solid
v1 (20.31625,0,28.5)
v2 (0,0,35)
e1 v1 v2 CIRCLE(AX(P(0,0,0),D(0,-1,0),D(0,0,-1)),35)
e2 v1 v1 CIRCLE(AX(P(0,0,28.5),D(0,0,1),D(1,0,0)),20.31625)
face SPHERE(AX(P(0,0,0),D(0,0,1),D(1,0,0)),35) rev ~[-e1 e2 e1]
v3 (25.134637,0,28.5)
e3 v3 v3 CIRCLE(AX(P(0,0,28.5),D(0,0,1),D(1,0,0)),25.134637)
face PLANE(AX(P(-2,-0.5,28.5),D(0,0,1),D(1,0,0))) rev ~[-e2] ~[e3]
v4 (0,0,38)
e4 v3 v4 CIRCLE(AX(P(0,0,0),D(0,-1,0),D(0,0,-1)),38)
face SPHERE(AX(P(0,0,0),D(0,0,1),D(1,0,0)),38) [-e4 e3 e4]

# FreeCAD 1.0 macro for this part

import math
import FreeCAD as App
import Part
import Sketcher
Q = App.Units.Quantity

doc = App.newDocument("Part")
body = doc.addObject("PartDesign::Body", "Body")

sketch1 = body.newObject("Sketcher::SketchObject", "Sketch")
sketch1.AttachmentSupport = (doc.getObject("XY_Plane"), [""])
sketch1.MapMode = "FlatFace"
sketch1.addGeometry(Part.Circle(App.Vector(0, 0, 0), App.Vector(0, 0, 1), 9), False)
sketch1.addConstraint(Sketcher.Constraint("Coincident", 0, 3, -1, 1))
sketch1.addConstraint(Sketcher.Constraint("Diameter", 0, Q("18 mm")))
pad1 = body.newObject("PartDesign::Pad", "Pad")
pad1.Profile = sketch1
pad1.Length = 10
body2 = doc.addObject("PartDesign::Body", "Body001")
doc.recompute()

body.Placement = App.Placement(App.Vector(0, 0, 0), App.Rotation(App.Vector(0, 1, 0), 90))
boolean = body2.newObject("PartDesign::Boolean", "Boolean")
boolean.Type = "Fuse"
boolean.addObjects([body])
body3 = doc.addObject("PartDesign::Body", "Body002")
doc.recompute()

body2.Placement = App.Placement(App.Vector(-33, 0, 3), App.Rotation(App.Vector(0, 0, 1), 0))
boolean2 = body3.newObject("PartDesign::Boolean", "Boolean001")
boolean2.Type = "Fuse"
boolean2.addObjects([body2])
body4 = doc.addObject("PartDesign::Body", "Body003")

sketch2 = body4.newObject("Sketcher::SketchObject", "Sketch001")
sketch2.AttachmentSupport = (doc.getObject("XY_Plane003"), [""])
sketch2.MapMode = "FlatFace"
sketch2.AttachmentOffset = App.Placement(App.Vector(0, 0, -3), App.Rotation())
sketch2.addGeometry(Part.LineSegment(App.Vector(-33, 9, 0), App.Vector(-33, -9, 0)), False)
sketch2.addGeometry(Part.LineSegment(App.Vector(-33, -9, 0), App.Vector(-23, -9, 0)), False)
sketch2.addGeometry(Part.LineSegment(App.Vector(-23, -9, 0), App.Vector(-23, 9, 0)), False)
sketch2.addGeometry(Part.LineSegment(App.Vector(-23, 9, 0), App.Vector(-33, 9, 0)), False)
sketch2.addConstraint(Sketcher.Constraint("Coincident", 0, 2, 1, 1))
sketch2.addConstraint(Sketcher.Constraint("Coincident", 1, 2, 2, 1))
sketch2.addConstraint(Sketcher.Constraint("Coincident", 2, 2, 3, 1))
sketch2.addConstraint(Sketcher.Constraint("Coincident", 3, 2, 0, 1))
sketch2.addConstraint(Sketcher.Constraint("Vertical", 0))
sketch2.addConstraint(Sketcher.Constraint("Horizontal", 1))
sketch2.addConstraint(Sketcher.Constraint("Vertical", 2))
sketch2.addConstraint(Sketcher.Constraint("Horizontal", 3))
sketch2.addConstraint(Sketcher.Constraint("DistanceX", 1, 1, 1, 2, Q("10 mm")))
sketch2.addConstraint(Sketcher.Constraint("DistanceY", 0, 2, 0, 1, Q("18 mm")))
sketch2.addConstraint(Sketcher.Constraint("DistanceX", 0, 2, -1, 1, Q("33 mm")))
sketch2.addConstraint(Sketcher.Constraint("DistanceY", 0, 2, -1, 1, Q("9 mm")))
pad2 = body4.newObject("PartDesign::Pad", "Pad001")
pad2.Profile = sketch2
pad2.Length = 6
body5 = doc.addObject("PartDesign::Body", "Body004")

sketch3 = body5.newObject("Sketcher::SketchObject", "Sketch002")
sketch3.AttachmentSupport = (doc.getObject("XY_Plane004"), [""])
sketch3.MapMode = "FlatFace"
sketch3.addGeometry(Part.Circle(App.Vector(0, 0, 0), App.Vector(0, 0, 1), 9), False)
sketch3.addConstraint(Sketcher.Constraint("Coincident", 0, 3, -1, 1))
sketch3.addConstraint(Sketcher.Constraint("Diameter", 0, Q("18 mm")))
pad3 = body5.newObject("PartDesign::Pad", "Pad002")
pad3.Profile = sketch3
pad3.Length = 10
body6 = doc.addObject("PartDesign::Body", "Body005")
doc.recompute()

body5.Placement = App.Placement(App.Vector(0, 0, 0), App.Rotation(App.Vector(0, 1, 0), 90))
boolean3 = body6.newObject("PartDesign::Boolean", "Boolean002")
boolean3.Type = "Fuse"
boolean3.addObjects([body5])
body7 = doc.addObject("PartDesign::Body", "Body006")
doc.recompute()

body6.Placement = App.Placement(App.Vector(-33, 0, -3), App.Rotation(App.Vector(0, 0, 1), 0))
boolean4 = body7.newObject("PartDesign::Boolean", "Boolean003")
boolean4.Type = "Fuse"
boolean4.addObjects([body6])
doc.recompute()

boolean5 = body7.newObject("PartDesign::Boolean", "Boolean004")
boolean5.Type = "Fuse"
boolean5.addObjects([body3])
doc.recompute()

boolean6 = body7.newObject("PartDesign::Boolean", "Boolean005")
boolean6.Type = "Fuse"
boolean6.addObjects([body4])
body8 = doc.addObject("PartDesign::Body", "Body007")

sketch4 = body8.newObject("Sketcher::SketchObject", "Sketch003")
sketch4.AttachmentSupport = (doc.getObject("XY_Plane007"), [""])
sketch4.MapMode = "FlatFace"
sketch4.addGeometry(Part.Circle(App.Vector(0, 0, 0), App.Vector(0, 0, 1), 8), False)
sketch4.addConstraint(Sketcher.Constraint("Coincident", 0, 3, -1, 1))
sketch4.addConstraint(Sketcher.Constraint("Diameter", 0, Q("15 mm")))
pad4 = body8.newObject("PartDesign::Pad", "Pad003")
pad4.Profile = sketch4
pad4.Length = 20
body9 = doc.addObject("PartDesign::Body", "Body008")
doc.recompute()

body8.Placement = App.Placement(App.Vector(0, 0, 0), App.Rotation(App.Vector(0, 1, 0), 90))
boolean7 = body9.newObject("PartDesign::Boolean", "Boolean006")
boolean7.Type = "Fuse"
boolean7.addObjects([body8])
body10 = doc.addObject("PartDesign::Body", "Body009")
doc.recompute()

body9.Placement = App.Placement(App.Vector(-46, 0, 0), App.Rotation(App.Vector(0, 0, 1), 0))
boolean8 = body10.newObject("PartDesign::Boolean", "Boolean007")
boolean8.Type = "Fuse"
boolean8.addObjects([body9])
body11 = doc.addObject("PartDesign::Body", "Body010")

sketch5 = body11.newObject("Sketcher::SketchObject", "Sketch004")
sketch5.AttachmentSupport = (doc.getObject("XY_Plane010"), [""])
sketch5.MapMode = "FlatFace"
sketch5.addGeometry(Part.LineSegment(App.Vector(-51, -49, 0), App.Vector(-51, 49, 0)), False)
sketch5.addGeometry(Part.LineSegment(App.Vector(-51, 49, 0), App.Vector(47, 49, 0)), False)
sketch5.addGeometry(Part.LineSegment(App.Vector(47, 49, 0), App.Vector(47, -49, 0)), False)
sketch5.addGeometry(Part.LineSegment(App.Vector(47, -49, 0), App.Vector(-51, -49, 0)), False)
sketch5.addConstraint(Sketcher.Constraint("Coincident", 0, 2, 1, 1))
sketch5.addConstraint(Sketcher.Constraint("Coincident", 1, 2, 2, 1))
sketch5.addConstraint(Sketcher.Constraint("Coincident", 2, 2, 3, 1))
sketch5.addConstraint(Sketcher.Constraint("Coincident", 3, 2, 0, 1))
sketch5.addConstraint(Sketcher.Constraint("Vertical", 0))
sketch5.addConstraint(Sketcher.Constraint("Horizontal", 1))
sketch5.addConstraint(Sketcher.Constraint("Vertical", 2))
sketch5.addConstraint(Sketcher.Constraint("Horizontal", 3))
sketch5.addConstraint(Sketcher.Constraint("Equal", 3, 0))
sketch5.addConstraint(Sketcher.Constraint("DistanceX", 1, 1, 1, 2, Q("98 mm")))
sketch5.addConstraint(Sketcher.Constraint("DistanceX", 0, 2, -1, 1, Q("51 mm")))
sketch5.addConstraint(Sketcher.Constraint("DistanceY", -1, 1, 0, 2, Q("49 mm")))
pad5 = body11.newObject("PartDesign::Pad", "Pad004")
pad5.Profile = sketch5
pad5.Length = 98
pad5.Reversed = True
body12 = doc.addObject("PartDesign::Body", "Body011")

sketch6 = body12.newObject("Sketcher::SketchObject", "Sketch005")
sketch6.AttachmentSupport = (doc.getObject("XY_Plane011"), [""])
sketch6.MapMode = "FlatFace"
sketch6.addGeometry(Part.Circle(App.Vector(0, 0, 0), App.Vector(0, 0, 1), 4), False)
sketch6.addConstraint(Sketcher.Constraint("Coincident", 0, 3, -1, 1))
sketch6.addConstraint(Sketcher.Constraint("Diameter", 0, Q("8 mm")))
pad6 = body12.newObject("PartDesign::Pad", "Pad005")
pad6.Profile = sketch6
pad6.Length = 52
body13 = doc.addObject("PartDesign::Body", "Body012")
doc.recompute()

body12.Placement = App.Placement(App.Vector(0, 0, 0), App.Rotation(App.Vector(0, 1, 0), 270))
boolean9 = body13.newObject("PartDesign::Boolean", "Boolean008")
boolean9.Type = "Fuse"
boolean9.addObjects([body12])
body14 = doc.addObject("PartDesign::Body", "Body013")
doc.recompute()

body13.Placement = App.Placement(App.Vector(0, 0, 0), App.Rotation(App.Vector(0, 0, 1), 170))
boolean10 = body14.newObject("PartDesign::Boolean", "Boolean009")
boolean10.Type = "Fuse"
boolean10.addObjects([body13])
body15 = doc.addObject("PartDesign::Body", "Body014")

sketch7 = body15.newObject("Sketcher::SketchObject", "Sketch006")
sketch7.AttachmentSupport = (doc.getObject("XY_Plane014"), [""])
sketch7.MapMode = "FlatFace"
sketch7.addGeometry(Part.LineSegment(App.Vector(0, 64, 0), App.Vector(0, 0, 0)), False)
sketch7.addGeometry(Part.LineSegment(App.Vector(0, 0, 0), App.Vector(120, 0, 0)), False)
sketch7.addGeometry(Part.LineSegment(App.Vector(120, 0, 0), App.Vector(120, 64, 0)), False)
sketch7.addGeometry(Part.LineSegment(App.Vector(120, 64, 0), App.Vector(0, 64, 0)), False)
sketch7.addConstraint(Sketcher.Constraint("Coincident", 0, 2, 1, 1))
sketch7.addConstraint(Sketcher.Constraint("Coincident", 1, 2, 2, 1))
sketch7.addConstraint(Sketcher.Constraint("Coincident", 2, 2, 3, 1))
sketch7.addConstraint(Sketcher.Constraint("Coincident", 3, 2, 0, 1))
sketch7.addConstraint(Sketcher.Constraint("Vertical", 0))
sketch7.addConstraint(Sketcher.Constraint("Horizontal", 1))
sketch7.addConstraint(Sketcher.Constraint("Vertical", 2))
sketch7.addConstraint(Sketcher.Constraint("Horizontal", 3))
sketch7.addConstraint(Sketcher.Constraint("Coincident", 0, 2, -1, 1))
sketch7.addConstraint(Sketcher.Constraint("DistanceX", 1, 1, 1, 2, Q("120 mm")))
sketch7.addConstraint(Sketcher.Constraint("DistanceY", 0, 2, 0, 1, Q("64 mm")))
pad7 = body15.newObject("PartDesign::Pad", "Pad006")
pad7.Profile = sketch7
pad7.Length = 15
body16 = doc.addObject("PartDesign::Body", "Body015")
doc.recompute()

body15.Placement = App.Placement(App.Vector(-42.426407, -42.426407, -9), App.Rotation(App.Vector(0, 0, 1), 45))
boolean11 = body16.newObject("PartDesign::Boolean", "Boolean010")
boolean11.Type = "Fuse"
boolean11.addObjects([body15])
body17 = doc.addObject("PartDesign::Body", "Body016")

sketch8 = body17.newObject("Sketcher::SketchObject", "Sketch007")
sketch8.AttachmentSupport = (doc.getObject("XY_Plane016"), [""])
sketch8.MapMode = "FlatFace"
sketch8.addGeometry(Part.LineSegment(App.Vector(0, 61, 0), App.Vector(0, 0, 0)), False)
sketch8.addGeometry(Part.LineSegment(App.Vector(0, 0, 0), App.Vector(120, 0, 0)), False)
sketch8.addGeometry(Part.LineSegment(App.Vector(120, 0, 0), App.Vector(120, 61, 0)), False)
sketch8.addGeometry(Part.LineSegment(App.Vector(120, 61, 0), App.Vector(0, 61, 0)), False)
sketch8.addConstraint(Sketcher.Constraint("Coincident", 0, 2, 1, 1))
sketch8.addConstraint(Sketcher.Constraint("Coincident", 1, 2, 2, 1))
sketch8.addConstraint(Sketcher.Constraint("Coincident", 2, 2, 3, 1))
sketch8.addConstraint(Sketcher.Constraint("Coincident", 3, 2, 0, 1))
sketch8.addConstraint(Sketcher.Constraint("Vertical", 0))
sketch8.addConstraint(Sketcher.Constraint("Horizontal", 1))
sketch8.addConstraint(Sketcher.Constraint("Vertical", 2))
sketch8.addConstraint(Sketcher.Constraint("Horizontal", 3))
sketch8.addConstraint(Sketcher.Constraint("Coincident", 0, 2, -1, 1))
sketch8.addConstraint(Sketcher.Constraint("DistanceX", 1, 1, 1, 2, Q("120 mm")))
sketch8.addConstraint(Sketcher.Constraint("DistanceY", 0, 2, 0, 1, Q("61 mm")))
pad8 = body17.newObject("PartDesign::Pad", "Pad007")
pad8.Profile = sketch8
pad8.Length = 15
body18 = doc.addObject("PartDesign::Body", "Body017")
doc.recompute()

body17.Placement = App.Placement(App.Vector(-59.088465, 10.418891, -8), App.Rotation(App.Vector(0, 0, 1), 350))
boolean12 = body18.newObject("PartDesign::Boolean", "Boolean011")
boolean12.Type = "Fuse"
boolean12.addObjects([body17])
body19 = doc.addObject("PartDesign::Body", "Body018")

sketch9 = body19.newObject("Sketcher::SketchObject", "Sketch008")
sketch9.AttachmentSupport = (doc.getObject("XY_Plane018"), [""])
sketch9.MapMode = "FlatFace"
sketch9.AttachmentOffset = App.Placement(App.Vector(0, 0, -4), App.Rotation())
sketch9.addGeometry(Part.Circle(App.Vector(0, 0, 0), App.Vector(0, 0, 1), 52), False)
sketch9.addConstraint(Sketcher.Constraint("Coincident", 0, 3, -1, 1))
sketch9.addConstraint(Sketcher.Constraint("Diameter", 0, Q("104 mm")))
pad9 = body19.newObject("PartDesign::Pad", "Pad008")
pad9.Profile = sketch9
pad9.Length = 8
doc.recompute()

boolean13 = body19.newObject("PartDesign::Boolean", "Boolean012")
boolean13.Type = "Cut"
boolean13.addObjects([body18])
doc.recompute()

boolean14 = body19.newObject("PartDesign::Boolean", "Boolean013")
boolean14.Type = "Cut"
boolean14.addObjects([body16])
body20 = doc.addObject("PartDesign::Body", "Body019")

sketch10 = body20.newObject("Sketcher::SketchObject", "Sketch009")
sketch10.AttachmentSupport = (doc.getObject("XY_Plane019"), [""])
sketch10.MapMode = "FlatFace"
sketch10.addGeometry(Part.Circle(App.Vector(0, 0, 0), App.Vector(0, 0, 1), 4), False)
sketch10.addConstraint(Sketcher.Constraint("Coincident", 0, 3, -1, 1))
sketch10.addConstraint(Sketcher.Constraint("Diameter", 0, Q("8 mm")))
pad10 = body20.newObject("PartDesign::Pad", "Pad009")
pad10.Profile = sketch10
pad10.Length = 52
body21 = doc.addObject("PartDesign::Body", "Body020")
doc.recompute()

body20.Placement = App.Placement(App.Vector(0, 0, 0), App.Rotation(App.Vector(0, 1, 0), 270))
boolean15 = body21.newObject("PartDesign::Boolean", "Boolean014")
boolean15.Type = "Fuse"
boolean15.addObjects([body20])
body22 = doc.addObject("PartDesign::Body", "Body021")
doc.recompute()

body21.Placement = App.Placement(App.Vector(0, 0, 0), App.Rotation(App.Vector(0, 0, 1), 45))
boolean16 = body22.newObject("PartDesign::Boolean", "Boolean015")
boolean16.Type = "Fuse"
boolean16.addObjects([body21])
doc.recompute()

boolean17 = body22.newObject("PartDesign::Boolean", "Boolean016")
boolean17.Type = "Fuse"
boolean17.addObjects([body14])
doc.recompute()

boolean18 = body22.newObject("PartDesign::Boolean", "Boolean017")
boolean18.Type = "Fuse"
boolean18.addObjects([body19])
body23 = doc.addObject("PartDesign::Body", "Body022")

sketch11 = body23.newObject("Sketcher::SketchObject", "Sketch010")
sketch11.AttachmentSupport = (doc.getObject("XZ_Plane022"), [""])
sketch11.MapMode = "FlatFace"
sketch11.addGeometry(Part.ArcOfCircle(Part.Circle(App.Vector(0, 0, 0), App.Vector(0, 0, 1), 35), math.radians(-90), math.radians(90)), False)
sketch11.addGeometry(Part.LineSegment(App.Vector(0, 35, 0), App.Vector(0, -35, 0)), False)
sketch11.addConstraint(Sketcher.Constraint("Coincident", 0, 1, 1, 2))
sketch11.addConstraint(Sketcher.Constraint("Coincident", 1, 1, 0, 2))
sketch11.addConstraint(Sketcher.Constraint("Vertical", 1))
sketch11.addConstraint(Sketcher.Constraint("Coincident", 0, 3, -1, 1))
sketch11.addConstraint(Sketcher.Constraint("PointOnObject", 0, 1, -2))
sketch11.addConstraint(Sketcher.Constraint("Radius", 0, Q("35 mm")))
revolution = body23.newObject("PartDesign::Revolution", "Revolution")
revolution.Profile = sketch11
revolution.ReferenceAxis = (sketch11, ["V_Axis"])
revolution.Angle = 360
body24 = doc.addObject("PartDesign::Body", "Body023")

sketch12 = body24.newObject("Sketcher::SketchObject", "Sketch011")
sketch12.AttachmentSupport = (doc.getObject("XZ_Plane023"), [""])
sketch12.MapMode = "FlatFace"
sketch12.addGeometry(Part.ArcOfCircle(Part.Circle(App.Vector(0, 0, 0), App.Vector(0, 0, 1), 38), math.radians(-90), math.radians(90)), False)
sketch12.addGeometry(Part.LineSegment(App.Vector(0, 38, 0), App.Vector(0, -38, 0)), False)
sketch12.addConstraint(Sketcher.Constraint("Coincident", 0, 1, 1, 2))
sketch12.addConstraint(Sketcher.Constraint("Coincident", 1, 1, 0, 2))
sketch12.addConstraint(Sketcher.Constraint("Vertical", 1))
sketch12.addConstraint(Sketcher.Constraint("Coincident", 0, 3, -1, 1))
sketch12.addConstraint(Sketcher.Constraint("PointOnObject", 0, 1, -2))
sketch12.addConstraint(Sketcher.Constraint("Radius", 0, Q("38 mm")))
revolution2 = body24.newObject("PartDesign::Revolution", "Revolution001")
revolution2.Profile = sketch12
revolution2.ReferenceAxis = (sketch12, ["V_Axis"])
revolution2.Angle = 360
doc.recompute()

boolean19 = body24.newObject("PartDesign::Boolean", "Boolean018")
boolean19.Type = "Cut"
boolean19.addObjects([body23])
doc.recompute()

boolean20 = body24.newObject("PartDesign::Boolean", "Boolean019")
boolean20.Type = "Cut"
boolean20.addObjects([body22])
doc.recompute()

boolean21 = body24.newObject("PartDesign::Boolean", "Boolean020")
boolean21.Type = "Cut"
boolean21.addObjects([body11])
body25 = doc.addObject("PartDesign::Body", "Body024")

sketch13 = body25.newObject("Sketcher::SketchObject", "Sketch012")
sketch13.AttachmentSupport = (doc.getObject("XZ_Plane024"), [""])
sketch13.MapMode = "FlatFace"
sketch13.addGeometry(Part.ArcOfCircle(Part.Circle(App.Vector(0, 0, 0), App.Vector(0, 0, 1), 35), math.radians(-90), math.radians(90)), False)
sketch13.addGeometry(Part.LineSegment(App.Vector(0, 35, 0), App.Vector(0, -35, 0)), False)
sketch13.addConstraint(Sketcher.Constraint("Coincident", 0, 1, 1, 2))
sketch13.addConstraint(Sketcher.Constraint("Coincident", 1, 1, 0, 2))
sketch13.addConstraint(Sketcher.Constraint("Vertical", 1))
sketch13.addConstraint(Sketcher.Constraint("Coincident", 0, 3, -1, 1))
sketch13.addConstraint(Sketcher.Constraint("PointOnObject", 0, 1, -2))
sketch13.addConstraint(Sketcher.Constraint("Radius", 0, Q("35 mm")))
revolution3 = body25.newObject("PartDesign::Revolution", "Revolution002")
revolution3.Profile = sketch13
revolution3.ReferenceAxis = (sketch13, ["V_Axis"])
revolution3.Angle = 360
body26 = doc.addObject("PartDesign::Body", "Body025")

sketch14 = body26.newObject("Sketcher::SketchObject", "Sketch013")
sketch14.AttachmentSupport = (doc.getObject("XY_Plane025"), [""])
sketch14.MapMode = "FlatFace"
sketch14.addGeometry(Part.LineSegment(App.Vector(-38, 25, 0), App.Vector(-38, -22, 0)), False)
sketch14.addGeometry(Part.LineSegment(App.Vector(-38, -22, 0), App.Vector(-28, -22, 0)), False)
sketch14.addGeometry(Part.LineSegment(App.Vector(-28, -22, 0), App.Vector(-28, 25, 0)), False)
sketch14.addGeometry(Part.LineSegment(App.Vector(-28, 25, 0), App.Vector(-38, 25, 0)), False)
sketch14.addConstraint(Sketcher.Constraint("Coincident", 0, 2, 1, 1))
sketch14.addConstraint(Sketcher.Constraint("Coincident", 1, 2, 2, 1))
sketch14.addConstraint(Sketcher.Constraint("Coincident", 2, 2, 3, 1))
sketch14.addConstraint(Sketcher.Constraint("Coincident", 3, 2, 0, 1))
sketch14.addConstraint(Sketcher.Constraint("Vertical", 0))
sketch14.addConstraint(Sketcher.Constraint("Horizontal", 1))
sketch14.addConstraint(Sketcher.Constraint("Vertical", 2))
sketch14.addConstraint(Sketcher.Constraint("Horizontal", 3))
sketch14.addConstraint(Sketcher.Constraint("DistanceX", 1, 1, 1, 2, Q("10 mm")))
sketch14.addConstraint(Sketcher.Constraint("DistanceY", 0, 2, 0, 1, Q("47 mm")))
sketch14.addConstraint(Sketcher.Constraint("DistanceX", 0, 2, -1, 1, Q("38 mm")))
sketch14.addConstraint(Sketcher.Constraint("DistanceY", 0, 2, -1, 1, Q("22 mm")))
pad11 = body26.newObject("PartDesign::Pad", "Pad010")
pad11.Profile = sketch14
pad11.Length = 24
doc.recompute()

boolean22 = body26.newObject("PartDesign::Boolean", "Boolean021")
boolean22.Type = "Common"
boolean22.addObjects([body25])
doc.recompute()

boolean23 = body26.newObject("PartDesign::Boolean", "Boolean022")
boolean23.Type = "Fuse"
boolean23.addObjects([body24])
doc.recompute()

boolean24 = body26.newObject("PartDesign::Boolean", "Boolean023")
boolean24.Type = "Cut"
boolean24.addObjects([body10])
doc.recompute()

boolean25 = body26.newObject("PartDesign::Boolean", "Boolean024")
boolean25.Type = "Cut"
boolean25.addObjects([body7])
body27 = doc.addObject("PartDesign::Body", "Body026")

sketch15 = body27.newObject("Sketcher::SketchObject", "Sketch014")
sketch15.AttachmentSupport = (doc.getObject("XY_Plane026"), [""])
sketch15.MapMode = "FlatFace"
sketch15.AttachmentOffset = App.Placement(App.Vector(0, 0, 28.5), App.Rotation())
sketch15.addGeometry(Part.LineSegment(App.Vector(-39, 29, 0), App.Vector(-39, -30, 0)), False)
sketch15.addGeometry(Part.LineSegment(App.Vector(-39, -30, 0), App.Vector(35, -30, 0)), False)
sketch15.addGeometry(Part.LineSegment(App.Vector(35, -30, 0), App.Vector(35, 29, 0)), False)
sketch15.addGeometry(Part.LineSegment(App.Vector(35, 29, 0), App.Vector(-39, 29, 0)), False)
sketch15.addConstraint(Sketcher.Constraint("Coincident", 0, 2, 1, 1))
sketch15.addConstraint(Sketcher.Constraint("Coincident", 1, 2, 2, 1))
sketch15.addConstraint(Sketcher.Constraint("Coincident", 2, 2, 3, 1))
sketch15.addConstraint(Sketcher.Constraint("Coincident", 3, 2, 0, 1))
sketch15.addConstraint(Sketcher.Constraint("Vertical", 0))
sketch15.addConstraint(Sketcher.Constraint("Horizontal", 1))
sketch15.addConstraint(Sketcher.Constraint("Vertical", 2))
sketch15.addConstraint(Sketcher.Constraint("Horizontal", 3))
sketch15.addConstraint(Sketcher.Constraint("DistanceX", 1, 1, 1, 2, Q("74 mm")))
sketch15.addConstraint(Sketcher.Constraint("DistanceY", 0, 2, 0, 1, Q("59 mm")))
sketch15.addConstraint(Sketcher.Constraint("DistanceX", 0, 2, -1, 1, Q("39 mm")))
sketch15.addConstraint(Sketcher.Constraint("DistanceY", 0, 2, -1, 1, Q("30 mm")))
pad12 = body27.newObject("PartDesign::Pad", "Pad011")
pad12.Profile = sketch15
pad12.Length = 24
doc.recompute()

boolean26 = body27.newObject("PartDesign::Boolean", "Boolean025")
boolean26.Type = "Common"
boolean26.addObjects([body26])

doc.recompute()
